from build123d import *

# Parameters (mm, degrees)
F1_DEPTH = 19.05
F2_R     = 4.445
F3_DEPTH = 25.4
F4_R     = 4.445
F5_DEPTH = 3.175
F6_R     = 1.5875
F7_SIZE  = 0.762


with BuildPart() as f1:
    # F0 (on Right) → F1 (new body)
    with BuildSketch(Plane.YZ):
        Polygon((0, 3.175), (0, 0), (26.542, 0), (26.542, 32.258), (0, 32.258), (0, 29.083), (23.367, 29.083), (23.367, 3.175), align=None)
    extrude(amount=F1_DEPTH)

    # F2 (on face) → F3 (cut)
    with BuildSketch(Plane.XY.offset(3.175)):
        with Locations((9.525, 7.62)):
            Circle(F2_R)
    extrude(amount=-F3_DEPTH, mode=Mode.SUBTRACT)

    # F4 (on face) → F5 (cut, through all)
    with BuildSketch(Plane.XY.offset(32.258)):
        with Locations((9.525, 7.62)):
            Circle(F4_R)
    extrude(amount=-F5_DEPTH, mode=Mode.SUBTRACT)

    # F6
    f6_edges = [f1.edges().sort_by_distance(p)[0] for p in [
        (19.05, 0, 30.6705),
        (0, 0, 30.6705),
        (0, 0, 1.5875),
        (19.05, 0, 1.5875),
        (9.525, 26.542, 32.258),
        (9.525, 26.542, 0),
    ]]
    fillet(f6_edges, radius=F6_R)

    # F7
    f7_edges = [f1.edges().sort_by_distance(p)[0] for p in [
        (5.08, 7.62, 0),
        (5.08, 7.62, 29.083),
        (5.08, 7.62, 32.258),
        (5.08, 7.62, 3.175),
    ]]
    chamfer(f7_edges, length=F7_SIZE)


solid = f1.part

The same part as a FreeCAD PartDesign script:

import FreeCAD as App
import Part
import Sketcher

V = App.Vector
Q = App.Units.Quantity


def edges_at(feature, points):
    """Names of the edges that pass closest to the given points."""
    edges = feature.Shape.Edges
    near = lambda p: min(range(len(edges)), key=lambda i: edges[i].distToShape(Part.Vertex(*p))[0])
    return sorted({f"Edge{near(p) + 1}" for p in points})


def add_polygon(sketch, points):
    """Adds a closed chain of lines whose ends are joined by coincident constraints."""
    first, n = sketch.GeometryCount, len(points)
    for a, b in zip(points, points[1:] + points[:1]):
        sketch.addGeometry(Part.LineSegment(App.Vector(*a, 0), App.Vector(*b, 0)), False)
    for i in range(n):
        sketch.addConstraint(Sketcher.Constraint("Coincident", first + i, 2, first + (i + 1) % n, 1))

doc = App.newDocument("Part")
body = doc.addObject("PartDesign::Body", "Body")

sketch1 = body.newObject("Sketcher::SketchObject", "Sketch")
sketch1.AttachmentSupport = (doc.getObject("YZ_Plane"), [""])
sketch1.MapMode = "FlatFace"
add_polygon(sketch1, [(0, 3.2), (0, 0), (26.5, 0), (26.5, 32.3), (0, 32.3), (0, 29.1), (23.4, 29.1), (23.4, 3.2)])
sketch1.addConstraint([
    Sketcher.Constraint("Vertical", 0),
    Sketcher.Constraint("Horizontal", 1),
    Sketcher.Constraint("Vertical", 2),
    Sketcher.Constraint("Horizontal", 3),
    Sketcher.Constraint("Vertical", 4),
    Sketcher.Constraint("Horizontal", 5),
    Sketcher.Constraint("Vertical", 6),
    Sketcher.Constraint("Horizontal", 7),
    Sketcher.Constraint("Coincident", 0, 2, -1, 1),
    Sketcher.Constraint("PointOnObject", 3, 2, -2),
    Sketcher.Constraint("Equal", 0, 4),
    Sketcher.Constraint("DistanceY", 2, 1, 2, 2, Q("1.27 in")),
    Sketcher.Constraint("DistanceY", 6, 2, 6, 1, Q("1.02 in")),
    Sketcher.Constraint("DistanceX", 5, 2, 2, 2, Q("0.125 in")),
    Sketcher.Constraint("DistanceX", 1, 1, 1, 2, Q("26.542 mm")),
])
pad1 = body.newObject("PartDesign::Pad", "Pad")
pad1.Profile = sketch1
pad1.Length = Q("0.75 in")

sketch2 = body.newObject("Sketcher::SketchObject", "Sketch001")
sketch2.AttachmentSupport = (doc.getObject("XY_Plane"), [""])
sketch2.MapMode = "FlatFace"
sketch2.AttachmentOffset = App.Placement(V(0, 0, 0.125 * 25.4), App.Rotation())
sketch2.addGeometry(Part.Circle(V(9.5, 7.6, 0), V(0, 0, 1), 4.4), False)
sketch2.addConstraint([
    Sketcher.Constraint("Diameter", 0, Q("0.35 in")),
    Sketcher.Constraint("DistanceY", -1, 1, 0, 3, Q("0.3 in")),
    Sketcher.Constraint("DistanceX", -1, 1, 0, 3, Q("0.375 in")),
])
pocket1 = body.newObject("PartDesign::Pocket", "Pocket")
pocket1.Profile = sketch2
pocket1.Length = Q("1 in")

sketch3 = body.newObject("Sketcher::SketchObject", "Sketch002")
sketch3.AttachmentSupport = (doc.getObject("XY_Plane"), [""])
sketch3.MapMode = "FlatFace"
sketch3.AttachmentOffset = App.Placement(V(0, 0, 1.27 * 25.4), App.Rotation())
sketch3.addGeometry(Part.Circle(V(9.5, 7.6, 0), V(0, 0, 1), 4.4), False)
sketch3.addConstraint([
    Sketcher.Constraint("Diameter", 0, Q("0.35 in")),
    Sketcher.Constraint("DistanceY", -1, 1, 0, 3, Q("0.3 in")),
    Sketcher.Constraint("DistanceX", -1, 1, 0, 3, Q("0.375 in")),
])
pocket2 = body.newObject("PartDesign::Pocket", "Pocket001")
pocket2.Profile = sketch3
pocket2.Type = "ThroughAll"
doc.recompute()

fillet = body.newObject("PartDesign::Fillet", "Fillet")
fillet.Base = (pocket2, edges_at(pocket2, [
    (19.05, 0, 30.671),
    (0, 0, 30.671),
    (0, 0, 1.587),
    (19.05, 0, 1.587),
    (9.525, 26.542, 32.258),
    (9.525, 26.542, 0),
]))
fillet.Radius = Q("0.0625 in")
doc.recompute()

chamfer = body.newObject("PartDesign::Chamfer", "Chamfer")
chamfer.Base = (fillet, edges_at(fillet, [
    (5.08, 7.62, 0),
    (5.08, 7.62, 29.083),
    (5.08, 7.62, 32.258),
    (5.08, 7.62, 3.175),
]))
chamfer.Size = Q("0.03 in")

doc.recompute()
